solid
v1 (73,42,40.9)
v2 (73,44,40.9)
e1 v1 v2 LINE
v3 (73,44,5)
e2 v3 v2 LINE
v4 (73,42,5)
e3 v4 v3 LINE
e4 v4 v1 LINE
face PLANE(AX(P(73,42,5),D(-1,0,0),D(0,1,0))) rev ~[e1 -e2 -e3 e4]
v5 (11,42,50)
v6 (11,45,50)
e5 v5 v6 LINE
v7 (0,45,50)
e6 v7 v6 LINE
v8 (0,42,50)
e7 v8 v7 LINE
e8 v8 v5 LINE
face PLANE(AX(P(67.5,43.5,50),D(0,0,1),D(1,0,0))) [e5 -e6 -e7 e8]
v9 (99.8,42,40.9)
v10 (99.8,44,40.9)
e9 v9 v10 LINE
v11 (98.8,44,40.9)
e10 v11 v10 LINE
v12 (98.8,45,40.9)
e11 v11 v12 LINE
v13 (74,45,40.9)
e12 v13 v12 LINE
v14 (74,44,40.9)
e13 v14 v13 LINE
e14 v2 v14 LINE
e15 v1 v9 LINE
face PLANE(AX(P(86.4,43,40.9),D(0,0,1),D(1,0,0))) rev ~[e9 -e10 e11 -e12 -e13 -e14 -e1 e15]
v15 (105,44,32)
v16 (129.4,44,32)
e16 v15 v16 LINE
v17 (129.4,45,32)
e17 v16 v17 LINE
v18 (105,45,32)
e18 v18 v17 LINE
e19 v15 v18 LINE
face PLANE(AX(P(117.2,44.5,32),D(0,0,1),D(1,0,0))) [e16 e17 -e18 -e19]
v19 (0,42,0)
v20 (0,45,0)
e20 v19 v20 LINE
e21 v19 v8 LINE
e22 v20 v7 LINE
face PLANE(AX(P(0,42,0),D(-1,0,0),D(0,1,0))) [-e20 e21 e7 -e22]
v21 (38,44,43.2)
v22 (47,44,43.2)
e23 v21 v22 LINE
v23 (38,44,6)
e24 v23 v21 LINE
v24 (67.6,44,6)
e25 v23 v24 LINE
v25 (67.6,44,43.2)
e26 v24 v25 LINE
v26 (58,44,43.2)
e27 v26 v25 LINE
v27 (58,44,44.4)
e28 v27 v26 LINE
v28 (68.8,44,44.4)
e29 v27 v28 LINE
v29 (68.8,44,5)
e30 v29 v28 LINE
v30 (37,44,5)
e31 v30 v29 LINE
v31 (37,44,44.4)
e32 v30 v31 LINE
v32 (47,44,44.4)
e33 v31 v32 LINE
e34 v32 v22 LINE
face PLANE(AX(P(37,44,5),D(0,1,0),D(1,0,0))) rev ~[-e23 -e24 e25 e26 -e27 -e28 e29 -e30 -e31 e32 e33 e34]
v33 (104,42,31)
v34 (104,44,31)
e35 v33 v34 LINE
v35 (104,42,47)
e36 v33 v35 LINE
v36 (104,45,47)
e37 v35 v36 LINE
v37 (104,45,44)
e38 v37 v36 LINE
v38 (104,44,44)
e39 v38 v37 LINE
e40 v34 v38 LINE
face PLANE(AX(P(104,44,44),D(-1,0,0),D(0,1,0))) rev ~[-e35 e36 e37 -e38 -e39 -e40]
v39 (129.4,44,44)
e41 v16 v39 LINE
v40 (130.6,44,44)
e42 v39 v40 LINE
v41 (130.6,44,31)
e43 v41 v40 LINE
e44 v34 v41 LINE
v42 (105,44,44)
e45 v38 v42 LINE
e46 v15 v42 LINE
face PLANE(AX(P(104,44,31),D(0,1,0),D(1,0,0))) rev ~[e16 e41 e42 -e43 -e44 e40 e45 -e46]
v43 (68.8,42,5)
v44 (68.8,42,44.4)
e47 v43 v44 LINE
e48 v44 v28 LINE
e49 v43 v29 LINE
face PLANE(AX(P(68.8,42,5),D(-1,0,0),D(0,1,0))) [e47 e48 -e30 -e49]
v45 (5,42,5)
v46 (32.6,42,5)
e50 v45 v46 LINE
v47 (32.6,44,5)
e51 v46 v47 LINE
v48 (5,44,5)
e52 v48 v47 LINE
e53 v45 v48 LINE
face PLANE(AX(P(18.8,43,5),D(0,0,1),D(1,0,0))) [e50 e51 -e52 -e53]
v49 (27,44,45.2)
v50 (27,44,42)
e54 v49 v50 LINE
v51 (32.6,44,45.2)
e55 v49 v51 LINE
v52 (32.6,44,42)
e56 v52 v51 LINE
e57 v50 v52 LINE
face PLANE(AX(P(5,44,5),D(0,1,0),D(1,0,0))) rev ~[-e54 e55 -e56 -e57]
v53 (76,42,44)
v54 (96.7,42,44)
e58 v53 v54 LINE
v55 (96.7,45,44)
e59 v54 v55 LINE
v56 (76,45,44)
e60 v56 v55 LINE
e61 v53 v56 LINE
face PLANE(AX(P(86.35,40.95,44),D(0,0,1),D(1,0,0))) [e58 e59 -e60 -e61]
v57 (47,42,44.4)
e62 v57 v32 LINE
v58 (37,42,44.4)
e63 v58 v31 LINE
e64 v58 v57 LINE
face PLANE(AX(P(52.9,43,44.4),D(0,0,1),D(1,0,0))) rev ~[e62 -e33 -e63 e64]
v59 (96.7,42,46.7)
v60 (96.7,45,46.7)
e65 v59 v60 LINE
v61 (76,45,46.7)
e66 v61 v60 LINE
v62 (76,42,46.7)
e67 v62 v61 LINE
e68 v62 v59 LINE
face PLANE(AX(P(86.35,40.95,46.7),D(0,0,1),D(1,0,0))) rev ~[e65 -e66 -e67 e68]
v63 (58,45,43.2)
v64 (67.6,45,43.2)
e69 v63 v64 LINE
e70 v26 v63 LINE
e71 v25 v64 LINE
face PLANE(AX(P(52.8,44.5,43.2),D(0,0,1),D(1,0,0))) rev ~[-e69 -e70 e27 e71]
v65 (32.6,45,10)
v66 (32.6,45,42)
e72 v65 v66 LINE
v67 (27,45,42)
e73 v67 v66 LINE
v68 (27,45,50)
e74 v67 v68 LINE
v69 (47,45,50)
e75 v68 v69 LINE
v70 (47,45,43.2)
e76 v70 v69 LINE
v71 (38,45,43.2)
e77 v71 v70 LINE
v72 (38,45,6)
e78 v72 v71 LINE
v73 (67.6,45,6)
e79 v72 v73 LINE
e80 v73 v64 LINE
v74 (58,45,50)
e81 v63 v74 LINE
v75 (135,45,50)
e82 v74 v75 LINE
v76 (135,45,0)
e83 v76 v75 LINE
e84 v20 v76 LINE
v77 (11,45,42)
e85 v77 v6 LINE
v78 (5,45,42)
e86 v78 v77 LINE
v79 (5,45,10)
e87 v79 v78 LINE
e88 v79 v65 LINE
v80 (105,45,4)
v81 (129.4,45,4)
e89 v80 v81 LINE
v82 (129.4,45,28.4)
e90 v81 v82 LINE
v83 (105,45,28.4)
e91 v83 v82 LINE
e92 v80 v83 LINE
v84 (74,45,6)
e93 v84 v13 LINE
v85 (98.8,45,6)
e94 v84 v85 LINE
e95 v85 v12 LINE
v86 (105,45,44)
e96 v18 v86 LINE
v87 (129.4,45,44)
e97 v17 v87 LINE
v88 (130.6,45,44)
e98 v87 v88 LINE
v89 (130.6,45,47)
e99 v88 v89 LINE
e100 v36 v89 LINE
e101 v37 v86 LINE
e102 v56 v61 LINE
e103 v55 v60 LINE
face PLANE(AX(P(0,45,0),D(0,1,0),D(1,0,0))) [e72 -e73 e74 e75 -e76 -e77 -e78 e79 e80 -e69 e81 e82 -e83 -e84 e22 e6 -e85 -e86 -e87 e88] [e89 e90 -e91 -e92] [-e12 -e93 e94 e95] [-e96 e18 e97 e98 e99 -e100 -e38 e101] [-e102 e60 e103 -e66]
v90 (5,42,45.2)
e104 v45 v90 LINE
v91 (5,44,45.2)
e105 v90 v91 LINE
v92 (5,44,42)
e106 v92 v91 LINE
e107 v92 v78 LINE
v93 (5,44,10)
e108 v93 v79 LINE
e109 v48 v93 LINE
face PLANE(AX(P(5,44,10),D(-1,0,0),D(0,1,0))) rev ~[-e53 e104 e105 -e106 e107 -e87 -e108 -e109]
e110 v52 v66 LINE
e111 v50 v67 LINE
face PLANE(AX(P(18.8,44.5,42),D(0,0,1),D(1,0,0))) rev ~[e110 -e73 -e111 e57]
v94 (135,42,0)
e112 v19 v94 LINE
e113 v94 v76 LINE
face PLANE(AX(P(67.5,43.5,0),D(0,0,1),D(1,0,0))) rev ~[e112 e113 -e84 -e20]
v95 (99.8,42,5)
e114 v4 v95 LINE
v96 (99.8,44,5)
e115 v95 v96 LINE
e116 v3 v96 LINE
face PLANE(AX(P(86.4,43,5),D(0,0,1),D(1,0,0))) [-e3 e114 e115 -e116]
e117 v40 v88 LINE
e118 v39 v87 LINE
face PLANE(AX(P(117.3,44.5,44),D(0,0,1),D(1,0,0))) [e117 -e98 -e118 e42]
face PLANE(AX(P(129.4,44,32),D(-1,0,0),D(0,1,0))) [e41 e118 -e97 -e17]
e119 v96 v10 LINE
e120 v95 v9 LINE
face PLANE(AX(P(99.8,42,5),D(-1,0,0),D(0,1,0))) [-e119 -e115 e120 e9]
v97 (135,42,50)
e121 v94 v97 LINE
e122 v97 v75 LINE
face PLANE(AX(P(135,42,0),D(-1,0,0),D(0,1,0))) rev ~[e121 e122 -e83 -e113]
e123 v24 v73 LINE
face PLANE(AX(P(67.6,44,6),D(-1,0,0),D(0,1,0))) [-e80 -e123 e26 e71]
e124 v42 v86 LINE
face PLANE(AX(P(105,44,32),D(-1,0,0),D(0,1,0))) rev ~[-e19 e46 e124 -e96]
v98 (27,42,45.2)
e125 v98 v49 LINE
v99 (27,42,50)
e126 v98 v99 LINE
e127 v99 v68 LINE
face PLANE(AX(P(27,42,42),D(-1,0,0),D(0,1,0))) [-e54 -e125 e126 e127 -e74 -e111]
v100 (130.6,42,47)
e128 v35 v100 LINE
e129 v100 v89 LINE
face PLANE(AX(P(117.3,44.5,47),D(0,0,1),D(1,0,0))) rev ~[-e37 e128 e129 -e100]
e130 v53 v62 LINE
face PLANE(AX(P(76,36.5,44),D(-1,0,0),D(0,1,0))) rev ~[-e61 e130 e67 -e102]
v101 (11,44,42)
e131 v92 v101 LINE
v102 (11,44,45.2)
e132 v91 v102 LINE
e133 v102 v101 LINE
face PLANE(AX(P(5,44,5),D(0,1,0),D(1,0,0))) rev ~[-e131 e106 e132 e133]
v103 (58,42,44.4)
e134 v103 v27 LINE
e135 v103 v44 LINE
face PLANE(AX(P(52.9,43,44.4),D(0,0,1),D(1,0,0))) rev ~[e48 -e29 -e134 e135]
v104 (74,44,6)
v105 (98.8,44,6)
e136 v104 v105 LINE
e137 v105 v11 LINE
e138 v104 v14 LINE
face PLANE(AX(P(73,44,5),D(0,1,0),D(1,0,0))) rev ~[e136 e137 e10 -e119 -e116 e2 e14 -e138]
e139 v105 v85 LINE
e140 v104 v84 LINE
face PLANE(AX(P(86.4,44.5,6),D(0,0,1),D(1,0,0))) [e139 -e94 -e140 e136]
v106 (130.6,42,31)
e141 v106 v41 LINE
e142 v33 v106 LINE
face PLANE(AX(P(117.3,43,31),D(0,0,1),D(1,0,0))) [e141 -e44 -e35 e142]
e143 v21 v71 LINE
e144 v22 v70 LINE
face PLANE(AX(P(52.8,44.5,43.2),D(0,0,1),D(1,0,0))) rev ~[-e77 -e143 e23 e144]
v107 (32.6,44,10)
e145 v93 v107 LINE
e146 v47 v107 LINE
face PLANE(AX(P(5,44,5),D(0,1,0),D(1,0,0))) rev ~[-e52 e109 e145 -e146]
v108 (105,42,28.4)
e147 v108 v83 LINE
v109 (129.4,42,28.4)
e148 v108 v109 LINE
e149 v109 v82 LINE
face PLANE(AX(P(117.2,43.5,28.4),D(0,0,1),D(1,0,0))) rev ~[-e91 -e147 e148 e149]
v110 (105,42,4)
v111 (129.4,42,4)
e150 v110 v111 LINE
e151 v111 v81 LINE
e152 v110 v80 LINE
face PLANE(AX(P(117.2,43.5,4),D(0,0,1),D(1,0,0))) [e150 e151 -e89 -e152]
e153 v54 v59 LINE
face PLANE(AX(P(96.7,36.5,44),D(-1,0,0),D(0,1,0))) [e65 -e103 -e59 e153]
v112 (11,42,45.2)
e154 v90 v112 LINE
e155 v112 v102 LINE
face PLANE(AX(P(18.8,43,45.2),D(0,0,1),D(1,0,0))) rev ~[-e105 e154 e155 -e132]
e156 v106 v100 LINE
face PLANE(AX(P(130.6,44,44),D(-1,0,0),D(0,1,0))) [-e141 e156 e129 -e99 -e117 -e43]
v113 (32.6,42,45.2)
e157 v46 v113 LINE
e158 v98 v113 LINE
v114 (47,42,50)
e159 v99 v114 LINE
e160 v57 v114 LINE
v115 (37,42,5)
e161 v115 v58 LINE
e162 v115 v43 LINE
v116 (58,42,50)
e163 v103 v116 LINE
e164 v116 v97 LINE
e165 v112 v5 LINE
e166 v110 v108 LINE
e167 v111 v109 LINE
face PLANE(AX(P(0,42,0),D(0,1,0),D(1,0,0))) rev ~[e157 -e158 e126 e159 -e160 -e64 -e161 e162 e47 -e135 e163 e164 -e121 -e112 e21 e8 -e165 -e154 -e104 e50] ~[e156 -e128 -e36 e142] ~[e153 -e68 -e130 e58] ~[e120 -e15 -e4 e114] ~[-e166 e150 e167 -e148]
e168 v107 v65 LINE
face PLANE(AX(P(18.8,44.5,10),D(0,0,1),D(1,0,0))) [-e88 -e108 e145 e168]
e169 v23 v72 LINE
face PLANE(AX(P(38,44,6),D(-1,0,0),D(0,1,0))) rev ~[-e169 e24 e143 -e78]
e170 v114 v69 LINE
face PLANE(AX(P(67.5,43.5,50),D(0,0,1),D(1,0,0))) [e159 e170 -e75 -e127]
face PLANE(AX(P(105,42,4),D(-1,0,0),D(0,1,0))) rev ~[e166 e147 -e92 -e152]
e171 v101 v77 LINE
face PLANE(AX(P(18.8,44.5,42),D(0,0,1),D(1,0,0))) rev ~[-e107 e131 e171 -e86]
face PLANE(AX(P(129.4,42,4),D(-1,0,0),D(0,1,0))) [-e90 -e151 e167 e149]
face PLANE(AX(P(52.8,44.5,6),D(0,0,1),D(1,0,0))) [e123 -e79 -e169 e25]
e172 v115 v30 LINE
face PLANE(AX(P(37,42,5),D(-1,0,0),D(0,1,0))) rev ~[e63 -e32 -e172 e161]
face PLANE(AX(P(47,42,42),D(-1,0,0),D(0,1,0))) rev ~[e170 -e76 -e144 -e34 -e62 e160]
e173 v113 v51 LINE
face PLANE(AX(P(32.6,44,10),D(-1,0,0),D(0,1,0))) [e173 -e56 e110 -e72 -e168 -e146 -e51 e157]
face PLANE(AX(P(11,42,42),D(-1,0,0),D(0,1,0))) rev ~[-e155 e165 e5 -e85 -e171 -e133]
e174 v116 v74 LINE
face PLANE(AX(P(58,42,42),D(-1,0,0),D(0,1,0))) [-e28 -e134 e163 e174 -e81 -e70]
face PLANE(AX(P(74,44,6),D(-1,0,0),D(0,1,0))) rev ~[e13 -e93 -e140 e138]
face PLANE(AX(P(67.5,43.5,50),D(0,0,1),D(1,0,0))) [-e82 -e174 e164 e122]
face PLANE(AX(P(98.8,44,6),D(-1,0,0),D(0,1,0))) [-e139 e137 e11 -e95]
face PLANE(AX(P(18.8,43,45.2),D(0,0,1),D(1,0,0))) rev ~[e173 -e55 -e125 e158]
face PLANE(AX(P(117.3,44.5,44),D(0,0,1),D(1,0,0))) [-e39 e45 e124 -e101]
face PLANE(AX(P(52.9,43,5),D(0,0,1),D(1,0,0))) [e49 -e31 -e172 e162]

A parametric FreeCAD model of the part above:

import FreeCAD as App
import Part
import Sketcher
Q = App.Units.Quantity

doc = App.newDocument("Part")
params = doc.addObject("Spreadsheet::Sheet", "Params")
for row, (alias, value) in enumerate([
    ("sketch1_height", "2 mm"),
    ("sketch1_width", "27.6 mm"),
    ("pad1_length", "40.2 mm"),
    ("sketch2_height", "1 mm"),
    ("sketch2_width", "27.6 mm"),
    ("pad2_length", "32 mm"),
    ("sketch3_width", "16 mm"),
    ("sketch3_height", "3 mm"),
    ("pad3_length", "8 mm"),
    ("sketch4_height", "1 mm"),
    ("sketch4_width", "29.6 mm"),
    ("pad4_length", "37.2 mm"),
    ("sketch5_height", "2 mm"),
    ("sketch5_width", "31.8 mm"),
    ("pad5_length", "39.4 mm"),
    ("sketch6_width", "11 mm"),
    ("sketch6_height", "3 mm"),
    ("pad6_length", "8 mm"),
    ("sketch7_height", "2 mm"),
    ("sketch7_width", "26.8 mm"),
    ("pad7_length", "35.9 mm"),
    ("sketch8_height", "1 mm"),
    ("sketch8_width", "24.8 mm"),
    ("pad8_length", "34.9 mm"),
    ("sketch9_height", "3 mm"),
    ("sketch9_width", "24.4 mm"),
    ("pad9_length", "24.4 mm"),
    ("sketch10_width", "20.7 mm"),
    ("sketch10_height", "8.9 mm"),
    ("pad10_length", "2.7 mm"),
    ("sketch11_height", "1 mm"),
    ("sketch11_width", "24.4 mm"),
    ("pad11_length", "13.8 mm"),
    ("sketch12_height", "1 mm"),
    ("sketch12_width", "26.6 mm"),
    ("pad12_length", "3 mm"),
    ("sketch13_height", "2 mm"),
    ("sketch13_width", "26.6 mm"),
    ("pad13_length", "16 mm"),
    ("sketch14_width", "135 mm"),
    ("sketch14_height", "3 mm"),
    ("pad14_length", "50 mm"),
], start=1):
    params.set(f"A{row}", alias)
    params.set(f"B{row}", "=" + value)
    params.setAlias(f"B{row}", alias)

body = doc.addObject("PartDesign::Body", "Body")

# Sketch on XY plane
sketch1 = body.newObject("Sketcher::SketchObject", "Sketch")
sketch1.AttachmentSupport = (doc.getObject("XY_Plane"), [""])
sketch1.MapMode = "FlatFace"
sketch1.AttachmentOffset = App.Placement(App.Vector(0, 0, 5), App.Rotation())
sketch1.addGeometry(Part.LineSegment(App.Vector(5, 44, 0), App.Vector(5, 42, 0)), False)
sketch1.addGeometry(Part.LineSegment(App.Vector(5, 42, 0), App.Vector(32.6, 42, 0)), False)
sketch1.addGeometry(Part.LineSegment(App.Vector(32.6, 42, 0), App.Vector(32.6, 44, 0)), False)
sketch1.addGeometry(Part.LineSegment(App.Vector(32.6, 44, 0), App.Vector(5, 44, 0)), False)
sketch1.addConstraint(Sketcher.Constraint("Coincident", 0, 2, 1, 1))
sketch1.addConstraint(Sketcher.Constraint("Coincident", 1, 2, 2, 1))
sketch1.addConstraint(Sketcher.Constraint("Coincident", 2, 2, 3, 1))
sketch1.addConstraint(Sketcher.Constraint("Coincident", 3, 2, 0, 1))
sketch1.addConstraint(Sketcher.Constraint("Vertical", 0))
sketch1.addConstraint(Sketcher.Constraint("Horizontal", 1))
sketch1.addConstraint(Sketcher.Constraint("Vertical", 2))
sketch1.addConstraint(Sketcher.Constraint("Horizontal", 3))
sketch1.addConstraint(Sketcher.Constraint("DistanceY", 0, 2, 0, 1, Q("2 mm")))
sketch1.addConstraint(Sketcher.Constraint("DistanceX", 1, 1, 1, 2, Q("27.6 mm")))
sketch1.addConstraint(Sketcher.Constraint("DistanceX", -1, 1, 0, 2, Q("5 mm")))
sketch1.addConstraint(Sketcher.Constraint("DistanceY", -1, 1, 0, 2, Q("42 mm")))
sketch1.setExpression("Constraints[8]", "Params.sketch1_height")
sketch1.setExpression("Constraints[9]", "Params.sketch1_width")
pad1 = body.newObject("PartDesign::Pad", "Pad")
pad1.Profile = sketch1
pad1.setExpression("Length", "Params.pad1_length")
body2 = doc.addObject("PartDesign::Body", "Body001")

# Sketch on XY plane
sketch2 = body2.newObject("Sketcher::SketchObject", "Sketch001")
sketch2.AttachmentSupport = (doc.getObject("XY_Plane001"), [""])
sketch2.MapMode = "FlatFace"
sketch2.AttachmentOffset = App.Placement(App.Vector(0, 0, 10), App.Rotation())
sketch2.addGeometry(Part.LineSegment(App.Vector(5, 45, 0), App.Vector(5, 44, 0)), False)
sketch2.addGeometry(Part.LineSegment(App.Vector(5, 44, 0), App.Vector(32.6, 44, 0)), False)
sketch2.addGeometry(Part.LineSegment(App.Vector(32.6, 44, 0), App.Vector(32.6, 45, 0)), False)
sketch2.addGeometry(Part.LineSegment(App.Vector(32.6, 45, 0), App.Vector(5, 45, 0)), False)
sketch2.addConstraint(Sketcher.Constraint("Coincident", 0, 2, 1, 1))
sketch2.addConstraint(Sketcher.Constraint("Coincident", 1, 2, 2, 1))
sketch2.addConstraint(Sketcher.Constraint("Coincident", 2, 2, 3, 1))
sketch2.addConstraint(Sketcher.Constraint("Coincident", 3, 2, 0, 1))
sketch2.addConstraint(Sketcher.Constraint("Vertical", 0))
sketch2.addConstraint(Sketcher.Constraint("Horizontal", 1))
sketch2.addConstraint(Sketcher.Constraint("Vertical", 2))
sketch2.addConstraint(Sketcher.Constraint("Horizontal", 3))
sketch2.addConstraint(Sketcher.Constraint("DistanceY", 0, 2, 0, 1, Q("1 mm")))
sketch2.addConstraint(Sketcher.Constraint("DistanceX", 1, 1, 1, 2, Q("27.6 mm")))
sketch2.addConstraint(Sketcher.Constraint("DistanceX", -1, 1, 0, 2, Q("5 mm")))
sketch2.addConstraint(Sketcher.Constraint("DistanceY", -1, 1, 0, 2, Q("44 mm")))
sketch2.setExpression("Constraints[8]", "Params.sketch2_height")
sketch2.setExpression("Constraints[9]", "Params.sketch2_width")
pad2 = body2.newObject("PartDesign::Pad", "Pad001")
pad2.Profile = sketch2
pad2.setExpression("Length", "Params.pad2_length")
body3 = doc.addObject("PartDesign::Body", "Body002")

# Sketch on XY plane
sketch3 = body3.newObject("Sketcher::SketchObject", "Sketch002")
sketch3.AttachmentSupport = (doc.getObject("XY_Plane002"), [""])
sketch3.MapMode = "FlatFace"
sketch3.AttachmentOffset = App.Placement(App.Vector(0, 0, 42), App.Rotation())
sketch3.addGeometry(Part.LineSegment(App.Vector(11, 45, 0), App.Vector(11, 42, 0)), False)
sketch3.addGeometry(Part.LineSegment(App.Vector(11, 42, 0), App.Vector(27, 42, 0)), False)
sketch3.addGeometry(Part.LineSegment(App.Vector(27, 42, 0), App.Vector(27, 45, 0)), False)
sketch3.addGeometry(Part.LineSegment(App.Vector(27, 45, 0), App.Vector(11, 45, 0)), False)
sketch3.addConstraint(Sketcher.Constraint("Coincident", 0, 2, 1, 1))
sketch3.addConstraint(Sketcher.Constraint("Coincident", 1, 2, 2, 1))
sketch3.addConstraint(Sketcher.Constraint("Coincident", 2, 2, 3, 1))
sketch3.addConstraint(Sketcher.Constraint("Coincident", 3, 2, 0, 1))
sketch3.addConstraint(Sketcher.Constraint("Vertical", 0))
sketch3.addConstraint(Sketcher.Constraint("Horizontal", 1))
sketch3.addConstraint(Sketcher.Constraint("Vertical", 2))
sketch3.addConstraint(Sketcher.Constraint("Horizontal", 3))
sketch3.addConstraint(Sketcher.Constraint("DistanceX", 1, 1, 1, 2, Q("16 mm")))
sketch3.addConstraint(Sketcher.Constraint("DistanceY", 0, 2, 0, 1, Q("3 mm")))
sketch3.addConstraint(Sketcher.Constraint("DistanceX", -1, 1, 0, 2, Q("11 mm")))
sketch3.addConstraint(Sketcher.Constraint("DistanceY", -1, 1, 0, 2, Q("42 mm")))
sketch3.setExpression("Constraints[8]", "Params.sketch3_width")
sketch3.setExpression("Constraints[9]", "Params.sketch3_height")
pad3 = body3.newObject("PartDesign::Pad", "Pad002")
pad3.Profile = sketch3
pad3.setExpression("Length", "Params.pad3_length")
doc.recompute()

boolean = body3.newObject("PartDesign::Boolean", "Boolean")
boolean.Type = "Fuse"
boolean.addObjects([body])
doc.recompute()

boolean2 = body3.newObject("PartDesign::Boolean", "Boolean001")
boolean2.Type = "Fuse"
boolean2.addObjects([body2])
body4 = doc.addObject("PartDesign::Body", "Body003")

# Sketch on XY plane
sketch4 = body4.newObject("Sketcher::SketchObject", "Sketch003")
sketch4.AttachmentSupport = (doc.getObject("XY_Plane003"), [""])
sketch4.MapMode = "FlatFace"
sketch4.AttachmentOffset = App.Placement(App.Vector(0, 0, 6), App.Rotation())
sketch4.addGeometry(Part.LineSegment(App.Vector(38, 45, 0), App.Vector(38, 44, 0)), False)
sketch4.addGeometry(Part.LineSegment(App.Vector(38, 44, 0), App.Vector(67.6, 44, 0)), False)
sketch4.addGeometry(Part.LineSegment(App.Vector(67.6, 44, 0), App.Vector(67.6, 45, 0)), False)
sketch4.addGeometry(Part.LineSegment(App.Vector(67.6, 45, 0), App.Vector(38, 45, 0)), False)
sketch4.addConstraint(Sketcher.Constraint("Coincident", 0, 2, 1, 1))
sketch4.addConstraint(Sketcher.Constraint("Coincident", 1, 2, 2, 1))
sketch4.addConstraint(Sketcher.Constraint("Coincident", 2, 2, 3, 1))
sketch4.addConstraint(Sketcher.Constraint("Coincident", 3, 2, 0, 1))
sketch4.addConstraint(Sketcher.Constraint("Vertical", 0))
sketch4.addConstraint(Sketcher.Constraint("Horizontal", 1))
sketch4.addConstraint(Sketcher.Constraint("Vertical", 2))
sketch4.addConstraint(Sketcher.Constraint("Horizontal", 3))
sketch4.addConstraint(Sketcher.Constraint("DistanceY", 0, 2, 0, 1, Q("1 mm")))
sketch4.addConstraint(Sketcher.Constraint("DistanceX", 1, 1, 1, 2, Q("29.6 mm")))
sketch4.addConstraint(Sketcher.Constraint("DistanceX", -1, 1, 0, 2, Q("38 mm")))
sketch4.addConstraint(Sketcher.Constraint("DistanceY", -1, 1, 0, 2, Q("44 mm")))
sketch4.setExpression("Constraints[8]", "Params.sketch4_height")
sketch4.setExpression("Constraints[9]", "Params.sketch4_width")
pad4 = body4.newObject("PartDesign::Pad", "Pad003")
pad4.Profile = sketch4
pad4.setExpression("Length", "Params.pad4_length")
body5 = doc.addObject("PartDesign::Body", "Body004")

# Sketch on XY plane
sketch5 = body5.newObject("Sketcher::SketchObject", "Sketch004")
sketch5.AttachmentSupport = (doc.getObject("XY_Plane004"), [""])
sketch5.MapMode = "FlatFace"
sketch5.AttachmentOffset = App.Placement(App.Vector(0, 0, 5), App.Rotation())
sketch5.addGeometry(Part.LineSegment(App.Vector(37, 44, 0), App.Vector(37, 42, 0)), False)
sketch5.addGeometry(Part.LineSegment(App.Vector(37, 42, 0), App.Vector(68.8, 42, 0)), False)
sketch5.addGeometry(Part.LineSegment(App.Vector(68.8, 42, 0), App.Vector(68.8, 44, 0)), False)
sketch5.addGeometry(Part.LineSegment(App.Vector(68.8, 44, 0), App.Vector(37, 44, 0)), False)
sketch5.addConstraint(Sketcher.Constraint("Coincident", 0, 2, 1, 1))
sketch5.addConstraint(Sketcher.Constraint("Coincident", 1, 2, 2, 1))
sketch5.addConstraint(Sketcher.Constraint("Coincident", 2, 2, 3, 1))
sketch5.addConstraint(Sketcher.Constraint("Coincident", 3, 2, 0, 1))
sketch5.addConstraint(Sketcher.Constraint("Vertical", 0))
sketch5.addConstraint(Sketcher.Constraint("Horizontal", 1))
sketch5.addConstraint(Sketcher.Constraint("Vertical", 2))
sketch5.addConstraint(Sketcher.Constraint("Horizontal", 3))
sketch5.addConstraint(Sketcher.Constraint("DistanceY", 0, 2, 0, 1, Q("2 mm")))
sketch5.addConstraint(Sketcher.Constraint("DistanceX", 1, 1, 1, 2, Q("31.8 mm")))
sketch5.addConstraint(Sketcher.Constraint("DistanceX", -1, 1, 0, 2, Q("37 mm")))
sketch5.addConstraint(Sketcher.Constraint("DistanceY", -1, 1, 0, 2, Q("42 mm")))
sketch5.setExpression("Constraints[8]", "Params.sketch5_height")
sketch5.setExpression("Constraints[9]", "Params.sketch5_width")
pad5 = body5.newObject("PartDesign::Pad", "Pad004")
pad5.Profile = sketch5
pad5.setExpression("Length", "Params.pad5_length")
body6 = doc.addObject("PartDesign::Body", "Body005")

# Sketch on XY plane
sketch6 = body6.newObject("Sketcher::SketchObject", "Sketch005")
sketch6.AttachmentSupport = (doc.getObject("XY_Plane005"), [""])
sketch6.MapMode = "FlatFace"
sketch6.AttachmentOffset = App.Placement(App.Vector(0, 0, 42), App.Rotation())
sketch6.addGeometry(Part.LineSegment(App.Vector(47, 45, 0), App.Vector(47, 42, 0)), False)
sketch6.addGeometry(Part.LineSegment(App.Vector(47, 42, 0), App.Vector(58, 42, 0)), False)
sketch6.addGeometry(Part.LineSegment(App.Vector(58, 42, 0), App.Vector(58, 45, 0)), False)
sketch6.addGeometry(Part.LineSegment(App.Vector(58, 45, 0), App.Vector(47, 45, 0)), False)
sketch6.addConstraint(Sketcher.Constraint("Coincident", 0, 2, 1, 1))
sketch6.addConstraint(Sketcher.Constraint("Coincident", 1, 2, 2, 1))
sketch6.addConstraint(Sketcher.Constraint("Coincident", 2, 2, 3, 1))
sketch6.addConstraint(Sketcher.Constraint("Coincident", 3, 2, 0, 1))
sketch6.addConstraint(Sketcher.Constraint("Vertical", 0))
sketch6.addConstraint(Sketcher.Constraint("Horizontal", 1))
sketch6.addConstraint(Sketcher.Constraint("Vertical", 2))
sketch6.addConstraint(Sketcher.Constraint("Horizontal", 3))
sketch6.addConstraint(Sketcher.Constraint("DistanceX", 1, 1, 1, 2, Q("11 mm")))
sketch6.addConstraint(Sketcher.Constraint("DistanceY", 0, 2, 0, 1, Q("3 mm")))
sketch6.addConstraint(Sketcher.Constraint("DistanceX", -1, 1, 0, 2, Q("47 mm")))
sketch6.addConstraint(Sketcher.Constraint("DistanceY", -1, 1, 0, 2, Q("42 mm")))
sketch6.setExpression("Constraints[8]", "Params.sketch6_width")
sketch6.setExpression("Constraints[9]", "Params.sketch6_height")
pad6 = body6.newObject("PartDesign::Pad", "Pad005")
pad6.Profile = sketch6
pad6.setExpression("Length", "Params.pad6_length")
doc.recompute()

boolean3 = body6.newObject("PartDesign::Boolean", "Boolean002")
boolean3.Type = "Fuse"
boolean3.addObjects([body4])
doc.recompute()

boolean4 = body6.newObject("PartDesign::Boolean", "Boolean003")
boolean4.Type = "Fuse"
boolean4.addObjects([body5])
body7 = doc.addObject("PartDesign::Body", "Body006")

# Sketch on XY plane
sketch7 = body7.newObject("Sketcher::SketchObject", "Sketch006")
sketch7.AttachmentSupport = (doc.getObject("XY_Plane006"), [""])
sketch7.MapMode = "FlatFace"
sketch7.AttachmentOffset = App.Placement(App.Vector(0, 0, 5), App.Rotation())
sketch7.addGeometry(Part.LineSegment(App.Vector(73, 44, 0), App.Vector(73, 42, 0)), False)
sketch7.addGeometry(Part.LineSegment(App.Vector(73, 42, 0), App.Vector(99.8, 42, 0)), False)
sketch7.addGeometry(Part.LineSegment(App.Vector(99.8, 42, 0), App.Vector(99.8, 44, 0)), False)
sketch7.addGeometry(Part.LineSegment(App.Vector(99.8, 44, 0), App.Vector(73, 44, 0)), False)
sketch7.addConstraint(Sketcher.Constraint("Coincident", 0, 2, 1, 1))
sketch7.addConstraint(Sketcher.Constraint("Coincident", 1, 2, 2, 1))
sketch7.addConstraint(Sketcher.Constraint("Coincident", 2, 2, 3, 1))
sketch7.addConstraint(Sketcher.Constraint("Coincident", 3, 2, 0, 1))
sketch7.addConstraint(Sketcher.Constraint("Vertical", 0))
sketch7.addConstraint(Sketcher.Constraint("Horizontal", 1))
sketch7.addConstraint(Sketcher.Constraint("Vertical", 2))
sketch7.addConstraint(Sketcher.Constraint("Horizontal", 3))
sketch7.addConstraint(Sketcher.Constraint("DistanceY", 0, 2, 0, 1, Q("2 mm")))
sketch7.addConstraint(Sketcher.Constraint("DistanceX", 1, 1, 1, 2, Q("26.8 mm")))
sketch7.addConstraint(Sketcher.Constraint("DistanceX", -1, 1, 0, 2, Q("73 mm")))
sketch7.addConstraint(Sketcher.Constraint("DistanceY", -1, 1, 0, 2, Q("42 mm")))
sketch7.setExpression("Constraints[8]", "Params.sketch7_height")
sketch7.setExpression("Constraints[9]", "Params.sketch7_width")
pad7 = body7.newObject("PartDesign::Pad", "Pad006")
pad7.Profile = sketch7
pad7.setExpression("Length", "Params.pad7_length")
body8 = doc.addObject("PartDesign::Body", "Body007")

# Sketch on XY plane
sketch8 = body8.newObject("Sketcher::SketchObject", "Sketch007")
sketch8.AttachmentSupport = (doc.getObject("XY_Plane007"), [""])
sketch8.MapMode = "FlatFace"
sketch8.AttachmentOffset = App.Placement(App.Vector(0, 0, 6), App.Rotation())
sketch8.addGeometry(Part.LineSegment(App.Vector(74, 45, 0), App.Vector(74, 44, 0)), False)
sketch8.addGeometry(Part.LineSegment(App.Vector(74, 44, 0), App.Vector(98.8, 44, 0)), False)
sketch8.addGeometry(Part.LineSegment(App.Vector(98.8, 44, 0), App.Vector(98.8, 45, 0)), False)
sketch8.addGeometry(Part.LineSegment(App.Vector(98.8, 45, 0), App.Vector(74, 45, 0)), False)
sketch8.addConstraint(Sketcher.Constraint("Coincident", 0, 2, 1, 1))
sketch8.addConstraint(Sketcher.Constraint("Coincident", 1, 2, 2, 1))
sketch8.addConstraint(Sketcher.Constraint("Coincident", 2, 2, 3, 1))
sketch8.addConstraint(Sketcher.Constraint("Coincident", 3, 2, 0, 1))
sketch8.addConstraint(Sketcher.Constraint("Vertical", 0))
sketch8.addConstraint(Sketcher.Constraint("Horizontal", 1))
sketch8.addConstraint(Sketcher.Constraint("Vertical", 2))
sketch8.addConstraint(Sketcher.Constraint("Horizontal", 3))
sketch8.addConstraint(Sketcher.Constraint("DistanceY", 0, 2, 0, 1, Q("1 mm")))
sketch8.addConstraint(Sketcher.Constraint("DistanceX", 1, 1, 1, 2, Q("24.8 mm")))
sketch8.addConstraint(Sketcher.Constraint("DistanceX", -1, 1, 0, 2, Q("74 mm")))
sketch8.addConstraint(Sketcher.Constraint("DistanceY", -1, 1, 0, 2, Q("44 mm")))
sketch8.setExpression("Constraints[8]", "Params.sketch8_height")
sketch8.setExpression("Constraints[9]", "Params.sketch8_width")
pad8 = body8.newObject("PartDesign::Pad", "Pad007")
pad8.Profile = sketch8
pad8.setExpression("Length", "Params.pad8_length")
doc.recompute()

boolean5 = body8.newObject("PartDesign::Boolean", "Boolean004")
boolean5.Type = "Fuse"
boolean5.addObjects([body7])
body9 = doc.addObject("PartDesign::Body", "Body008")

# Sketch on XY plane
sketch9 = body9.newObject("Sketcher::SketchObject", "Sketch008")
sketch9.AttachmentSupport = (doc.getObject("XY_Plane008"), [""])
sketch9.MapMode = "FlatFace"
sketch9.AttachmentOffset = App.Placement(App.Vector(0, 0, 4), App.Rotation())
sketch9.addGeometry(Part.LineSegment(App.Vector(105, 45, 0), App.Vector(105, 42, 0)), False)
sketch9.addGeometry(Part.LineSegment(App.Vector(105, 42, 0), App.Vector(129.4, 42, 0)), False)
sketch9.addGeometry(Part.LineSegment(App.Vector(129.4, 42, 0), App.Vector(129.4, 45, 0)), False)
sketch9.addGeometry(Part.LineSegment(App.Vector(129.4, 45, 0), App.Vector(105, 45, 0)), False)
sketch9.addConstraint(Sketcher.Constraint("Coincident", 0, 2, 1, 1))
sketch9.addConstraint(Sketcher.Constraint("Coincident", 1, 2, 2, 1))
sketch9.addConstraint(Sketcher.Constraint("Coincident", 2, 2, 3, 1))
sketch9.addConstraint(Sketcher.Constraint("Coincident", 3, 2, 0, 1))
sketch9.addConstraint(Sketcher.Constraint("Vertical", 0))
sketch9.addConstraint(Sketcher.Constraint("Horizontal", 1))
sketch9.addConstraint(Sketcher.Constraint("Vertical", 2))
sketch9.addConstraint(Sketcher.Constraint("Horizontal", 3))
sketch9.addConstraint(Sketcher.Constraint("DistanceY", 0, 2, 0, 1, Q("3 mm")))
sketch9.addConstraint(Sketcher.Constraint("DistanceX", 1, 1, 1, 2, Q("24.4 mm")))
sketch9.addConstraint(Sketcher.Constraint("DistanceX", -1, 1, 0, 2, Q("105 mm")))
sketch9.addConstraint(Sketcher.Constraint("DistanceY", -1, 1, 0, 2, Q("42 mm")))
sketch9.setExpression("Constraints[8]", "Params.sketch9_height")
sketch9.setExpression("Constraints[9]", "Params.sketch9_width")
pad9 = body9.newObject("PartDesign::Pad", "Pad008")
pad9.Profile = sketch9
pad9.setExpression("Length", "Params.pad9_length")
body10 = doc.addObject("PartDesign::Body", "Body009")

# Sketch on XY plane
sketch10 = body10.newObject("Sketcher::SketchObject", "Sketch009")
sketch10.AttachmentSupport = (doc.getObject("XY_Plane009"), [""])
sketch10.MapMode = "FlatFace"
sketch10.AttachmentOffset = App.Placement(App.Vector(0, 0, 44), App.Rotation())
sketch10.addGeometry(Part.LineSegment(App.Vector(76, 45.4, 0), App.Vector(76, 36.5, 0)), False)
sketch10.addGeometry(Part.LineSegment(App.Vector(76, 36.5, 0), App.Vector(96.7, 36.5, 0)), False)
sketch10.addGeometry(Part.LineSegment(App.Vector(96.7, 36.5, 0), App.Vector(96.7, 45.4, 0)), False)
sketch10.addGeometry(Part.LineSegment(App.Vector(96.7, 45.4, 0), App.Vector(76, 45.4, 0)), False)
sketch10.addConstraint(Sketcher.Constraint("Coincident", 0, 2, 1, 1))
sketch10.addConstraint(Sketcher.Constraint("Coincident", 1, 2, 2, 1))
sketch10.addConstraint(Sketcher.Constraint("Coincident", 2, 2, 3, 1))
sketch10.addConstraint(Sketcher.Constraint("Coincident", 3, 2, 0, 1))
sketch10.addConstraint(Sketcher.Constraint("Vertical", 0))
sketch10.addConstraint(Sketcher.Constraint("Horizontal", 1))
sketch10.addConstraint(Sketcher.Constraint("Vertical", 2))
sketch10.addConstraint(Sketcher.Constraint("Horizontal", 3))
sketch10.addConstraint(Sketcher.Constraint("DistanceX", 1, 1, 1, 2, Q("20.7 mm")))
sketch10.addConstraint(Sketcher.Constraint("DistanceY", 0, 2, 0, 1, Q("8.9 mm")))
sketch10.addConstraint(Sketcher.Constraint("DistanceX", -1, 1, 0, 2, Q("76 mm")))
sketch10.addConstraint(Sketcher.Constraint("DistanceY", -1, 1, 0, 2, Q("36.5 mm")))
sketch10.setExpression("Constraints[8]", "Params.sketch10_width")
sketch10.setExpression("Constraints[9]", "Params.sketch10_height")
pad10 = body10.newObject("PartDesign::Pad", "Pad009")
pad10.Profile = sketch10
pad10.setExpression("Length", "Params.pad10_length")
body11 = doc.addObject("PartDesign::Body", "Body010")

# Sketch on XY plane
sketch11 = body11.newObject("Sketcher::SketchObject", "Sketch010")
sketch11.AttachmentSupport = (doc.getObject("XY_Plane010"), [""])
sketch11.MapMode = "FlatFace"
sketch11.AttachmentOffset = App.Placement(App.Vector(0, 0, 30), App.Rotation())
sketch11.addGeometry(Part.LineSegment(App.Vector(103, 45, 0), App.Vector(103, 44, 0)), False)
sketch11.addGeometry(Part.LineSegment(App.Vector(103, 44, 0), App.Vector(127.4, 44, 0)), False)
sketch11.addGeometry(Part.LineSegment(App.Vector(127.4, 44, 0), App.Vector(127.4, 45, 0)), False)
sketch11.addGeometry(Part.LineSegment(App.Vector(127.4, 45, 0), App.Vector(103, 45, 0)), False)
sketch11.addConstraint(Sketcher.Constraint("Coincident", 0, 2, 1, 1))
sketch11.addConstraint(Sketcher.Constraint("Coincident", 1, 2, 2, 1))
sketch11.addConstraint(Sketcher.Constraint("Coincident", 2, 2, 3, 1))
sketch11.addConstraint(Sketcher.Constraint("Coincident", 3, 2, 0, 1))
sketch11.addConstraint(Sketcher.Constraint("Vertical", 0))
sketch11.addConstraint(Sketcher.Constraint("Horizontal", 1))
sketch11.addConstraint(Sketcher.Constraint("Vertical", 2))
sketch11.addConstraint(Sketcher.Constraint("Horizontal", 3))
sketch11.addConstraint(Sketcher.Constraint("DistanceY", 0, 2, 0, 1, Q("1 mm")))
sketch11.addConstraint(Sketcher.Constraint("DistanceX", 1, 1, 1, 2, Q("24.4 mm")))
sketch11.addConstraint(Sketcher.Constraint("DistanceX", -1, 1, 0, 2, Q("103 mm")))
sketch11.addConstraint(Sketcher.Constraint("DistanceY", -1, 1, 0, 2, Q("44 mm")))
sketch11.setExpression("Constraints[8]", "Params.sketch11_height")
sketch11.setExpression("Constraints[9]", "Params.sketch11_width")
pad11 = body11.newObject("PartDesign::Pad", "Pad010")
pad11.Profile = sketch11
pad11.setExpression("Length", "Params.pad11_length")
body12 = doc.addObject("PartDesign::Body", "Body011")

# Sketch on XY plane
sketch12 = body12.newObject("Sketcher::SketchObject", "Sketch011")
sketch12.AttachmentSupport = (doc.getObject("XY_Plane011"), [""])
sketch12.MapMode = "FlatFace"
sketch12.AttachmentOffset = App.Placement(App.Vector(0, 0, 42), App.Rotation())
sketch12.addGeometry(Part.LineSegment(App.Vector(102, 45, 0), App.Vector(102, 44, 0)), False)
sketch12.addGeometry(Part.LineSegment(App.Vector(102, 44, 0), App.Vector(128.6, 44, 0)), False)
sketch12.addGeometry(Part.LineSegment(App.Vector(128.6, 44, 0), App.Vector(128.6, 45, 0)), False)
sketch12.addGeometry(Part.LineSegment(App.Vector(128.6, 45, 0), App.Vector(102, 45, 0)), False)
sketch12.addConstraint(Sketcher.Constraint("Coincident", 0, 2, 1, 1))
sketch12.addConstraint(Sketcher.Constraint("Coincident", 1, 2, 2, 1))
sketch12.addConstraint(Sketcher.Constraint("Coincident", 2, 2, 3, 1))
sketch12.addConstraint(Sketcher.Constraint("Coincident", 3, 2, 0, 1))
sketch12.addConstraint(Sketcher.Constraint("Vertical", 0))
sketch12.addConstraint(Sketcher.Constraint("Horizontal", 1))
sketch12.addConstraint(Sketcher.Constraint("Vertical", 2))
sketch12.addConstraint(Sketcher.Constraint("Horizontal", 3))
sketch12.addConstraint(Sketcher.Constraint("DistanceY", 0, 2, 0, 1, Q("1 mm")))
sketch12.addConstraint(Sketcher.Constraint("DistanceX", 1, 1, 1, 2, Q("26.6 mm")))
sketch12.addConstraint(Sketcher.Constraint("DistanceX", -1, 1, 0, 2, Q("102 mm")))
sketch12.addConstraint(Sketcher.Constraint("DistanceY", -1, 1, 0, 2, Q("44 mm")))
sketch12.setExpression("Constraints[8]", "Params.sketch12_height")
sketch12.setExpression("Constraints[9]", "Params.sketch12_width")
pad12 = body12.newObject("PartDesign::Pad", "Pad011")
pad12.Profile = sketch12
pad12.setExpression("Length", "Params.pad12_length")
body13 = doc.addObject("PartDesign::Body", "Body012")

# Sketch on XY plane
sketch13 = body13.newObject("Sketcher::SketchObject", "Sketch012")
sketch13.AttachmentSupport = (doc.getObject("XY_Plane012"), [""])
sketch13.MapMode = "FlatFace"
sketch13.AttachmentOffset = App.Placement(App.Vector(0, 0, 29), App.Rotation())
sketch13.addGeometry(Part.LineSegment(App.Vector(102, 44, 0), App.Vector(102, 42, 0)), False)
sketch13.addGeometry(Part.LineSegment(App.Vector(102, 42, 0), App.Vector(128.6, 42, 0)), False)
sketch13.addGeometry(Part.LineSegment(App.Vector(128.6, 42, 0), App.Vector(128.6, 44, 0)), False)
sketch13.addGeometry(Part.LineSegment(App.Vector(128.6, 44, 0), App.Vector(102, 44, 0)), False)
sketch13.addConstraint(Sketcher.Constraint("Coincident", 0, 2, 1, 1))
sketch13.addConstraint(Sketcher.Constraint("Coincident", 1, 2, 2, 1))
sketch13.addConstraint(Sketcher.Constraint("Coincident", 2, 2, 3, 1))
sketch13.addConstraint(Sketcher.Constraint("Coincident", 3, 2, 0, 1))
sketch13.addConstraint(Sketcher.Constraint("Vertical", 0))
sketch13.addConstraint(Sketcher.Constraint("Horizontal", 1))
sketch13.addConstraint(Sketcher.Constraint("Vertical", 2))
sketch13.addConstraint(Sketcher.Constraint("Horizontal", 3))
sketch13.addConstraint(Sketcher.Constraint("DistanceY", 0, 2, 0, 1, Q("2 mm")))
sketch13.addConstraint(Sketcher.Constraint("DistanceX", 1, 1, 1, 2, Q("26.6 mm")))
sketch13.addConstraint(Sketcher.Constraint("DistanceX", -1, 1, 0, 2, Q("102 mm")))
sketch13.addConstraint(Sketcher.Constraint("DistanceY", -1, 1, 0, 2, Q("42 mm")))
sketch13.setExpression("Constraints[8]", "Params.sketch13_height")
sketch13.setExpression("Constraints[9]", "Params.sketch13_width")
pad13 = body13.newObject("PartDesign::Pad", "Pad012")
pad13.Profile = sketch13
pad13.setExpression("Length", "Params.pad13_length")
doc.recompute()

boolean6 = body13.newObject("PartDesign::Boolean", "Boolean005")
boolean6.Type = "Fuse"
boolean6.addObjects([body11])
doc.recompute()

boolean7 = body13.newObject("PartDesign::Boolean", "Boolean006")
boolean7.Type = "Fuse"
boolean7.addObjects([body12])
body14 = doc.addObject("PartDesign::Body", "Body013")
body14.AllowCompound = True
doc.recompute()

body13.Placement = App.Placement(App.Vector(2, 0, 2), App.Rotation(App.Vector(0, 0, 1), 0))
boolean8 = body14.newObject("PartDesign::Boolean", "Boolean007")
boolean8.Type = "Fuse"
boolean8.addObjects([body13])
doc.recompute()

boolean9 = body14.newObject("PartDesign::Boolean", "Boolean008")
boolean9.Type = "Fuse"
boolean9.addObjects([body3])
doc.recompute()

boolean10 = body14.newObject("PartDesign::Boolean", "Boolean009")
boolean10.Type = "Fuse"
boolean10.addObjects([body6])
doc.recompute()

boolean11 = body14.newObject("PartDesign::Boolean", "Boolean010")
boolean11.Type = "Fuse"
boolean11.addObjects([body8])
doc.recompute()

boolean12 = body14.newObject("PartDesign::Boolean", "Boolean011")
boolean12.Type = "Fuse"
boolean12.addObjects([body9])
doc.recompute()

boolean13 = body14.newObject("PartDesign::Boolean", "Boolean012")
boolean13.Type = "Fuse"
boolean13.addObjects([body10])
body15 = doc.addObject("PartDesign::Body", "Body014")

# Sketch on XY plane
sketch14 = body15.newObject("Sketcher::SketchObject", "Sketch013")
sketch14.AttachmentSupport = (doc.getObject("XY_Plane014"), [""])
sketch14.MapMode = "FlatFace"
sketch14.addGeometry(Part.LineSegment(App.Vector(0, 45, 0), App.Vector(0, 42, 0)), False)
sketch14.addGeometry(Part.LineSegment(App.Vector(0, 42, 0), App.Vector(135, 42, 0)), False)
sketch14.addGeometry(Part.LineSegment(App.Vector(135, 42, 0), App.Vector(135, 45, 0)), False)
sketch14.addGeometry(Part.LineSegment(App.Vector(135, 45, 0), App.Vector(0, 45, 0)), False)
sketch14.addConstraint(Sketcher.Constraint("Coincident", 0, 2, 1, 1))
sketch14.addConstraint(Sketcher.Constraint("Coincident", 1, 2, 2, 1))
sketch14.addConstraint(Sketcher.Constraint("Coincident", 2, 2, 3, 1))
sketch14.addConstraint(Sketcher.Constraint("Coincident", 3, 2, 0, 1))
sketch14.addConstraint(Sketcher.Constraint("Vertical", 0))
sketch14.addConstraint(Sketcher.Constraint("Horizontal", 1))
sketch14.addConstraint(Sketcher.Constraint("Vertical", 2))
sketch14.addConstraint(Sketcher.Constraint("Horizontal", 3))
sketch14.addConstraint(Sketcher.Constraint("PointOnObject", 0, 2, -2))
sketch14.addConstraint(Sketcher.Constraint("DistanceX", 1, 1, 1, 2, Q("135 mm")))
sketch14.addConstraint(Sketcher.Constraint("DistanceY", 0, 2, 0, 1, Q("3 mm")))
sketch14.addConstraint(Sketcher.Constraint("DistanceY", -1, 1, 0, 2, Q("42 mm")))
sketch14.setExpression("Constraints[9]", "Params.sketch14_width")
sketch14.setExpression("Constraints[10]", "Params.sketch14_height")
pad14 = body15.newObject("PartDesign::Pad", "Pad013")
pad14.Profile = sketch14
pad14.setExpression("Length", "Params.pad14_length")
doc.recompute()

boolean14 = body15.newObject("PartDesign::Boolean", "Boolean013")
boolean14.Type = "Cut"
boolean14.addObjects([body14])

doc.recompute()
